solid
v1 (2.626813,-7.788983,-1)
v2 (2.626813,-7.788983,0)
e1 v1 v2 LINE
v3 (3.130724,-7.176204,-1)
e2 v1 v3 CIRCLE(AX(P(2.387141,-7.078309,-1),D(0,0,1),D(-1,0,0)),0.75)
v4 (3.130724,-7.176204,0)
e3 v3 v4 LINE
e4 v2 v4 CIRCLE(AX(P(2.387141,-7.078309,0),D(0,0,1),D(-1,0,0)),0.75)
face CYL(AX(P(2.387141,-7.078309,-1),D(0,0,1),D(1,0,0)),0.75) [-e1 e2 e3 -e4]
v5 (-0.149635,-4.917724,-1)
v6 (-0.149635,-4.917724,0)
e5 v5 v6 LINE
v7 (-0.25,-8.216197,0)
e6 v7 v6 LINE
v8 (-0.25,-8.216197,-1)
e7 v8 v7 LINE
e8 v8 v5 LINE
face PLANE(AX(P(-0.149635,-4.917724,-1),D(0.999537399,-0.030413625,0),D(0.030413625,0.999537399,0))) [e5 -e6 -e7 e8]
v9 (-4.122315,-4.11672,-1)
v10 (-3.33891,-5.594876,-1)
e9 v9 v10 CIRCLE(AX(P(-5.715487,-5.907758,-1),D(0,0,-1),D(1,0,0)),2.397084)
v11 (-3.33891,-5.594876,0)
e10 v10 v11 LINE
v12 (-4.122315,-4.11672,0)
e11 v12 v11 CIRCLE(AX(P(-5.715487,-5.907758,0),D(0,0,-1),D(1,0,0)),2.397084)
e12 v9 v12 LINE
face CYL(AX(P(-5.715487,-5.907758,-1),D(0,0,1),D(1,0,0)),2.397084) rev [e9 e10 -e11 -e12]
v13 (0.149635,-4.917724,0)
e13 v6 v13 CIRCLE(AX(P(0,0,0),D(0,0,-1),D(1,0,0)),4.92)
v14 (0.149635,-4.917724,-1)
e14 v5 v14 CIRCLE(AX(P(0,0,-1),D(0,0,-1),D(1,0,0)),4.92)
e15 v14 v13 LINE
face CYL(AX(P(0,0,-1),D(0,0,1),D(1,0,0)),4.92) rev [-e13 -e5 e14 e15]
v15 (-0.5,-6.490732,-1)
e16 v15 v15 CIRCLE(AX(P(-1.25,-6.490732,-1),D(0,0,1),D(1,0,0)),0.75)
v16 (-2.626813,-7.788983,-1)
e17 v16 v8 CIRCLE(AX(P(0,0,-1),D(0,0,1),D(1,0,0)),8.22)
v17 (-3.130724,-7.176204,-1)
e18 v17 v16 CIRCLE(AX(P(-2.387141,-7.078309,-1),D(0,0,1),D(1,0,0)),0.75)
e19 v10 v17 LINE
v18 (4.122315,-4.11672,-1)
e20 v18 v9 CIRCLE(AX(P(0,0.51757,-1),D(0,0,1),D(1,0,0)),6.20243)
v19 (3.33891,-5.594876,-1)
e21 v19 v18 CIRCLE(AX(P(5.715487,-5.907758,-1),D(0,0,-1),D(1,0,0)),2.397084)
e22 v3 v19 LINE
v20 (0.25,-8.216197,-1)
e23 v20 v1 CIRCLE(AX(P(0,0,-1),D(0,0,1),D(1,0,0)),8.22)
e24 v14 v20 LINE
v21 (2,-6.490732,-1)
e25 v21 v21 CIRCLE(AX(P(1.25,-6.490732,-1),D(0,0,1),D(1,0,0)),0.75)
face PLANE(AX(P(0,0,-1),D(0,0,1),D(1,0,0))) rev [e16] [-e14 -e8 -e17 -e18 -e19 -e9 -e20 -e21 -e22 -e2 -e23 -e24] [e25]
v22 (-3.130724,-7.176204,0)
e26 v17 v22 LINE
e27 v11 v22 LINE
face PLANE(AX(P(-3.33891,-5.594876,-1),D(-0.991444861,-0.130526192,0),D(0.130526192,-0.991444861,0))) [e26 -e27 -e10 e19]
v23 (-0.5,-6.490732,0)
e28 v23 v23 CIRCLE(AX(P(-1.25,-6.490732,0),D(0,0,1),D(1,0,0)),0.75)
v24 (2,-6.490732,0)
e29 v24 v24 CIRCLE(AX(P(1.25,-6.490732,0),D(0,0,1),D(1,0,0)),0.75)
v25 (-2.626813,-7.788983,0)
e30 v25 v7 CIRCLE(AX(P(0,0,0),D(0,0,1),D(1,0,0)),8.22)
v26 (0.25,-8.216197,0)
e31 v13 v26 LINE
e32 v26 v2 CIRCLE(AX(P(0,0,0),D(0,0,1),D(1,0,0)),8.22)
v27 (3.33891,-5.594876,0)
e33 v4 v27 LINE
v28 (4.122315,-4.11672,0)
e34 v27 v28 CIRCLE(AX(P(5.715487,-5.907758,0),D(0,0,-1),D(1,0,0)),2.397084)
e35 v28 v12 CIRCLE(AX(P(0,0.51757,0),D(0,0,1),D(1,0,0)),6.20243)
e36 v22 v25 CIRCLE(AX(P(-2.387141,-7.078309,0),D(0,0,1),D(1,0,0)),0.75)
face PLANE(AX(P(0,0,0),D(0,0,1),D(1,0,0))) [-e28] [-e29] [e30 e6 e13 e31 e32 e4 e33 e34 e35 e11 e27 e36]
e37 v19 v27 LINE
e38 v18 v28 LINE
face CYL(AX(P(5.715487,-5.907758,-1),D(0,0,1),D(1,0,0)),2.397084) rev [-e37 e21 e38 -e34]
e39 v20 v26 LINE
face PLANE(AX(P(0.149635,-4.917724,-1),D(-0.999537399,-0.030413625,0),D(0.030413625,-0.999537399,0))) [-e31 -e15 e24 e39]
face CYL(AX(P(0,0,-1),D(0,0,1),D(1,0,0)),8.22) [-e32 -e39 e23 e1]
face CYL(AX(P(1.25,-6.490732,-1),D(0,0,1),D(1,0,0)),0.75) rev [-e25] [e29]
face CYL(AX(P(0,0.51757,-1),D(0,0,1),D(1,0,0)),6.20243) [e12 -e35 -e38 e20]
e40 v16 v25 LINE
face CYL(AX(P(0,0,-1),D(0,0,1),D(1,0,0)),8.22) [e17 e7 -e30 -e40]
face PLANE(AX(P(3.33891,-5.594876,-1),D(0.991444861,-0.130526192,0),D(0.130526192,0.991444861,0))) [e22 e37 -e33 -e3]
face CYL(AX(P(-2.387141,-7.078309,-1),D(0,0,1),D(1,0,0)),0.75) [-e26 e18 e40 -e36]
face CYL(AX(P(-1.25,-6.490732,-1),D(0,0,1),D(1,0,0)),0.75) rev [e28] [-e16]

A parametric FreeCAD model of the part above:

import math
import FreeCAD as App
import Part
import Sketcher

V = App.Vector
Q = App.Units.Quantity

doc = App.newDocument("Part")
body = doc.addObject("PartDesign::Body", "Body")

sketch1 = doc.addObject("Sketcher::SketchObject", "Sketch")
body.addObject(sketch1)
sketch1.AttachmentSupport = (doc.XY_Plane, [""])
sketch1.MapMode = "FlatFace"
sketch1.addGeometry(Part.LineSegment(V(0.15, -4.92, 0), V(0.25, -8.22, 0)), False)
sketch1.addGeometry(Part.ArcOfCircle(Part.Circle(V(0, 0, 0), V(0, 0, 1), 8.22), math.radians(-88.26), math.radians(-71.36)), False)
sketch1.addGeometry(Part.ArcOfCircle(Part.Circle(V(2.39, -7.08, 0), V(0, 0, 1), 0.75), math.radians(-71), math.radians(-8)), False)
sketch1.addGeometry(Part.LineSegment(V(3.13, -7.18, 0), V(3.34, -5.59, 0)), False)
sketch1.addGeometry(Part.ArcOfCircle(Part.Circle(V(5.72, -5.91, 0), V(0, 0, 1), 2.4), math.radians(132), math.radians(172)), False)
sketch1.addGeometry(Part.ArcOfCircle(Part.Circle(V(0, 0.52, 0), V(0, 0, 1), 6.2), math.radians(-48), math.radians(228)), False)
sketch1.addGeometry(Part.ArcOfCircle(Part.Circle(V(-5.72, -5.91, 0), V(0, 0, 1), 2.4), math.radians(8), math.radians(48)), False)
sketch1.addGeometry(Part.LineSegment(V(-3.34, -5.59, 0), V(-3.13, -7.18, 0)), False)
sketch1.addGeometry(Part.ArcOfCircle(Part.Circle(V(-2.39, -7.08, 0), V(0, 0, 1), 0.75), math.radians(-172), math.radians(-109)), False)
sketch1.addGeometry(Part.ArcOfCircle(Part.Circle(V(0, 0, 0), V(0, 0, 1), 8.22), math.radians(-108.64), math.radians(-91.74)), False)
sketch1.addGeometry(Part.LineSegment(V(-0.25, -8.22, 0), V(-0.15, -4.92, 0)), False)
sketch1.addGeometry(Part.ArcOfCircle(Part.Circle(V(0, 0, 0), V(0, 0, 1), 4.92), math.radians(-88), math.radians(268)), False)
sketch1.addGeometry(Part.Circle(V(-1.25, -6.49, 0), V(0, 0, 1), 0.75), False)
sketch1.addGeometry(Part.Circle(V(1.25, -6.49, 0), V(0, 0, 1), 0.75), False)
sketch1.addConstraint(Sketcher.Constraint("Coincident", 0, 2, 1, 1))
sketch1.addConstraint(Sketcher.Constraint("Tangent", 1, 2, 2, 1))
sketch1.addConstraint(Sketcher.Constraint("Tangent", 2, 2, 3, 1))
sketch1.addConstraint(Sketcher.Constraint("Tangent", 3, 2, 4, 2))
sketch1.addConstraint(Sketcher.Constraint("Tangent", 4, 1, 5, 1))
sketch1.addConstraint(Sketcher.Constraint("Tangent", 5, 2, 6, 2))
sketch1.addConstraint(Sketcher.Constraint("Tangent", 6, 1, 7, 1))
sketch1.addConstraint(Sketcher.Constraint("Tangent", 7, 2, 8, 1))
sketch1.addConstraint(Sketcher.Constraint("Tangent", 8, 2, 9, 1))
sketch1.addConstraint(Sketcher.Constraint("Coincident", 9, 2, 10, 1))
sketch1.addConstraint(Sketcher.Constraint("Coincident", 10, 2, 11, 2))
sketch1.addConstraint(Sketcher.Constraint("Coincident", 11, 1, 0, 1))
sketch1.addConstraint(Sketcher.Constraint("Coincident", 1, 3, -1, 1))
sketch1.addConstraint(Sketcher.Constraint("Coincident", 9, 3, -1, 1))
sketch1.addConstraint(Sketcher.Constraint("Coincident", 11, 3, -1, 1))
sketch1.addConstraint(Sketcher.Constraint("Equal", 4, 6))
sketch1.addConstraint(Sketcher.Constraint("Equal", 2, 8))
sketch1.addConstraint(Sketcher.Constraint("Equal", 1, 9))
sketch1.addConstraint(Sketcher.Constraint("Equal", 8, 12))
sketch1.addConstraint(Sketcher.Constraint("Equal", 12, 13))
sketch1.addConstraint(Sketcher.Constraint("Symmetric", 4, 3, 6, 3, -2))
sketch1.addConstraint(Sketcher.Constraint("Symmetric", 12, 3, 13, 3, -2))
sketch1.addConstraint(Sketcher.Constraint("Horizontal", 2, 3, 8, 3))
sketch1.addConstraint(Sketcher.Constraint("Horizontal", 0, 2, 9, 2))
sketch1.addConstraint(Sketcher.Constraint("Horizontal", 10, 2, 11, 1))
sketch1.addConstraint(Sketcher.Constraint("Diameter", 12, Q("1.5 mm")))
sketch1.addConstraint(Sketcher.Constraint("Radius", 1, Q("8.22 mm")))
sketch1.addConstraint(Sketcher.Constraint("Radius", 11, Q("4.92 mm")))
sketch1.addConstraint(Sketcher.Constraint("Angle", 3, Q("82.5 deg")))
sketch1.addConstraint(Sketcher.Constraint("DistanceX", 0, 2, 13, 3, Q("1 mm")))
sketch1.addConstraint(Sketcher.Constraint("DistanceX", 12, 3, 13, 3, Q("2.5 mm")))
sketch1.addConstraint(Sketcher.Constraint("Radius", 5, Q("6.20243 mm")))
sketch1.addConstraint(Sketcher.Constraint("Radius", 4, Q("2.397084 mm")))
sketch1.addConstraint(Sketcher.Constraint("DistanceX", -1, 1, 2, 3, Q("2.387141 mm")))
sketch1.addConstraint(Sketcher.Constraint("DistanceY", 4, 3, -1, 1, Q("5.907758 mm")))
sketch1.addConstraint(Sketcher.Constraint("DistanceY", 12, 3, -1, 1, Q("6.490732 mm")))
sketch1.addConstraint(Sketcher.Constraint("DistanceY", 6, 1, 10, 2, Q("0.677152 mm")))
pad1 = doc.addObject("PartDesign::Pad", "Pad")
body.addObject(pad1)
pad1.Profile = sketch1
pad1.Length = 1
pad1.Reversed = True

doc.recompute()
